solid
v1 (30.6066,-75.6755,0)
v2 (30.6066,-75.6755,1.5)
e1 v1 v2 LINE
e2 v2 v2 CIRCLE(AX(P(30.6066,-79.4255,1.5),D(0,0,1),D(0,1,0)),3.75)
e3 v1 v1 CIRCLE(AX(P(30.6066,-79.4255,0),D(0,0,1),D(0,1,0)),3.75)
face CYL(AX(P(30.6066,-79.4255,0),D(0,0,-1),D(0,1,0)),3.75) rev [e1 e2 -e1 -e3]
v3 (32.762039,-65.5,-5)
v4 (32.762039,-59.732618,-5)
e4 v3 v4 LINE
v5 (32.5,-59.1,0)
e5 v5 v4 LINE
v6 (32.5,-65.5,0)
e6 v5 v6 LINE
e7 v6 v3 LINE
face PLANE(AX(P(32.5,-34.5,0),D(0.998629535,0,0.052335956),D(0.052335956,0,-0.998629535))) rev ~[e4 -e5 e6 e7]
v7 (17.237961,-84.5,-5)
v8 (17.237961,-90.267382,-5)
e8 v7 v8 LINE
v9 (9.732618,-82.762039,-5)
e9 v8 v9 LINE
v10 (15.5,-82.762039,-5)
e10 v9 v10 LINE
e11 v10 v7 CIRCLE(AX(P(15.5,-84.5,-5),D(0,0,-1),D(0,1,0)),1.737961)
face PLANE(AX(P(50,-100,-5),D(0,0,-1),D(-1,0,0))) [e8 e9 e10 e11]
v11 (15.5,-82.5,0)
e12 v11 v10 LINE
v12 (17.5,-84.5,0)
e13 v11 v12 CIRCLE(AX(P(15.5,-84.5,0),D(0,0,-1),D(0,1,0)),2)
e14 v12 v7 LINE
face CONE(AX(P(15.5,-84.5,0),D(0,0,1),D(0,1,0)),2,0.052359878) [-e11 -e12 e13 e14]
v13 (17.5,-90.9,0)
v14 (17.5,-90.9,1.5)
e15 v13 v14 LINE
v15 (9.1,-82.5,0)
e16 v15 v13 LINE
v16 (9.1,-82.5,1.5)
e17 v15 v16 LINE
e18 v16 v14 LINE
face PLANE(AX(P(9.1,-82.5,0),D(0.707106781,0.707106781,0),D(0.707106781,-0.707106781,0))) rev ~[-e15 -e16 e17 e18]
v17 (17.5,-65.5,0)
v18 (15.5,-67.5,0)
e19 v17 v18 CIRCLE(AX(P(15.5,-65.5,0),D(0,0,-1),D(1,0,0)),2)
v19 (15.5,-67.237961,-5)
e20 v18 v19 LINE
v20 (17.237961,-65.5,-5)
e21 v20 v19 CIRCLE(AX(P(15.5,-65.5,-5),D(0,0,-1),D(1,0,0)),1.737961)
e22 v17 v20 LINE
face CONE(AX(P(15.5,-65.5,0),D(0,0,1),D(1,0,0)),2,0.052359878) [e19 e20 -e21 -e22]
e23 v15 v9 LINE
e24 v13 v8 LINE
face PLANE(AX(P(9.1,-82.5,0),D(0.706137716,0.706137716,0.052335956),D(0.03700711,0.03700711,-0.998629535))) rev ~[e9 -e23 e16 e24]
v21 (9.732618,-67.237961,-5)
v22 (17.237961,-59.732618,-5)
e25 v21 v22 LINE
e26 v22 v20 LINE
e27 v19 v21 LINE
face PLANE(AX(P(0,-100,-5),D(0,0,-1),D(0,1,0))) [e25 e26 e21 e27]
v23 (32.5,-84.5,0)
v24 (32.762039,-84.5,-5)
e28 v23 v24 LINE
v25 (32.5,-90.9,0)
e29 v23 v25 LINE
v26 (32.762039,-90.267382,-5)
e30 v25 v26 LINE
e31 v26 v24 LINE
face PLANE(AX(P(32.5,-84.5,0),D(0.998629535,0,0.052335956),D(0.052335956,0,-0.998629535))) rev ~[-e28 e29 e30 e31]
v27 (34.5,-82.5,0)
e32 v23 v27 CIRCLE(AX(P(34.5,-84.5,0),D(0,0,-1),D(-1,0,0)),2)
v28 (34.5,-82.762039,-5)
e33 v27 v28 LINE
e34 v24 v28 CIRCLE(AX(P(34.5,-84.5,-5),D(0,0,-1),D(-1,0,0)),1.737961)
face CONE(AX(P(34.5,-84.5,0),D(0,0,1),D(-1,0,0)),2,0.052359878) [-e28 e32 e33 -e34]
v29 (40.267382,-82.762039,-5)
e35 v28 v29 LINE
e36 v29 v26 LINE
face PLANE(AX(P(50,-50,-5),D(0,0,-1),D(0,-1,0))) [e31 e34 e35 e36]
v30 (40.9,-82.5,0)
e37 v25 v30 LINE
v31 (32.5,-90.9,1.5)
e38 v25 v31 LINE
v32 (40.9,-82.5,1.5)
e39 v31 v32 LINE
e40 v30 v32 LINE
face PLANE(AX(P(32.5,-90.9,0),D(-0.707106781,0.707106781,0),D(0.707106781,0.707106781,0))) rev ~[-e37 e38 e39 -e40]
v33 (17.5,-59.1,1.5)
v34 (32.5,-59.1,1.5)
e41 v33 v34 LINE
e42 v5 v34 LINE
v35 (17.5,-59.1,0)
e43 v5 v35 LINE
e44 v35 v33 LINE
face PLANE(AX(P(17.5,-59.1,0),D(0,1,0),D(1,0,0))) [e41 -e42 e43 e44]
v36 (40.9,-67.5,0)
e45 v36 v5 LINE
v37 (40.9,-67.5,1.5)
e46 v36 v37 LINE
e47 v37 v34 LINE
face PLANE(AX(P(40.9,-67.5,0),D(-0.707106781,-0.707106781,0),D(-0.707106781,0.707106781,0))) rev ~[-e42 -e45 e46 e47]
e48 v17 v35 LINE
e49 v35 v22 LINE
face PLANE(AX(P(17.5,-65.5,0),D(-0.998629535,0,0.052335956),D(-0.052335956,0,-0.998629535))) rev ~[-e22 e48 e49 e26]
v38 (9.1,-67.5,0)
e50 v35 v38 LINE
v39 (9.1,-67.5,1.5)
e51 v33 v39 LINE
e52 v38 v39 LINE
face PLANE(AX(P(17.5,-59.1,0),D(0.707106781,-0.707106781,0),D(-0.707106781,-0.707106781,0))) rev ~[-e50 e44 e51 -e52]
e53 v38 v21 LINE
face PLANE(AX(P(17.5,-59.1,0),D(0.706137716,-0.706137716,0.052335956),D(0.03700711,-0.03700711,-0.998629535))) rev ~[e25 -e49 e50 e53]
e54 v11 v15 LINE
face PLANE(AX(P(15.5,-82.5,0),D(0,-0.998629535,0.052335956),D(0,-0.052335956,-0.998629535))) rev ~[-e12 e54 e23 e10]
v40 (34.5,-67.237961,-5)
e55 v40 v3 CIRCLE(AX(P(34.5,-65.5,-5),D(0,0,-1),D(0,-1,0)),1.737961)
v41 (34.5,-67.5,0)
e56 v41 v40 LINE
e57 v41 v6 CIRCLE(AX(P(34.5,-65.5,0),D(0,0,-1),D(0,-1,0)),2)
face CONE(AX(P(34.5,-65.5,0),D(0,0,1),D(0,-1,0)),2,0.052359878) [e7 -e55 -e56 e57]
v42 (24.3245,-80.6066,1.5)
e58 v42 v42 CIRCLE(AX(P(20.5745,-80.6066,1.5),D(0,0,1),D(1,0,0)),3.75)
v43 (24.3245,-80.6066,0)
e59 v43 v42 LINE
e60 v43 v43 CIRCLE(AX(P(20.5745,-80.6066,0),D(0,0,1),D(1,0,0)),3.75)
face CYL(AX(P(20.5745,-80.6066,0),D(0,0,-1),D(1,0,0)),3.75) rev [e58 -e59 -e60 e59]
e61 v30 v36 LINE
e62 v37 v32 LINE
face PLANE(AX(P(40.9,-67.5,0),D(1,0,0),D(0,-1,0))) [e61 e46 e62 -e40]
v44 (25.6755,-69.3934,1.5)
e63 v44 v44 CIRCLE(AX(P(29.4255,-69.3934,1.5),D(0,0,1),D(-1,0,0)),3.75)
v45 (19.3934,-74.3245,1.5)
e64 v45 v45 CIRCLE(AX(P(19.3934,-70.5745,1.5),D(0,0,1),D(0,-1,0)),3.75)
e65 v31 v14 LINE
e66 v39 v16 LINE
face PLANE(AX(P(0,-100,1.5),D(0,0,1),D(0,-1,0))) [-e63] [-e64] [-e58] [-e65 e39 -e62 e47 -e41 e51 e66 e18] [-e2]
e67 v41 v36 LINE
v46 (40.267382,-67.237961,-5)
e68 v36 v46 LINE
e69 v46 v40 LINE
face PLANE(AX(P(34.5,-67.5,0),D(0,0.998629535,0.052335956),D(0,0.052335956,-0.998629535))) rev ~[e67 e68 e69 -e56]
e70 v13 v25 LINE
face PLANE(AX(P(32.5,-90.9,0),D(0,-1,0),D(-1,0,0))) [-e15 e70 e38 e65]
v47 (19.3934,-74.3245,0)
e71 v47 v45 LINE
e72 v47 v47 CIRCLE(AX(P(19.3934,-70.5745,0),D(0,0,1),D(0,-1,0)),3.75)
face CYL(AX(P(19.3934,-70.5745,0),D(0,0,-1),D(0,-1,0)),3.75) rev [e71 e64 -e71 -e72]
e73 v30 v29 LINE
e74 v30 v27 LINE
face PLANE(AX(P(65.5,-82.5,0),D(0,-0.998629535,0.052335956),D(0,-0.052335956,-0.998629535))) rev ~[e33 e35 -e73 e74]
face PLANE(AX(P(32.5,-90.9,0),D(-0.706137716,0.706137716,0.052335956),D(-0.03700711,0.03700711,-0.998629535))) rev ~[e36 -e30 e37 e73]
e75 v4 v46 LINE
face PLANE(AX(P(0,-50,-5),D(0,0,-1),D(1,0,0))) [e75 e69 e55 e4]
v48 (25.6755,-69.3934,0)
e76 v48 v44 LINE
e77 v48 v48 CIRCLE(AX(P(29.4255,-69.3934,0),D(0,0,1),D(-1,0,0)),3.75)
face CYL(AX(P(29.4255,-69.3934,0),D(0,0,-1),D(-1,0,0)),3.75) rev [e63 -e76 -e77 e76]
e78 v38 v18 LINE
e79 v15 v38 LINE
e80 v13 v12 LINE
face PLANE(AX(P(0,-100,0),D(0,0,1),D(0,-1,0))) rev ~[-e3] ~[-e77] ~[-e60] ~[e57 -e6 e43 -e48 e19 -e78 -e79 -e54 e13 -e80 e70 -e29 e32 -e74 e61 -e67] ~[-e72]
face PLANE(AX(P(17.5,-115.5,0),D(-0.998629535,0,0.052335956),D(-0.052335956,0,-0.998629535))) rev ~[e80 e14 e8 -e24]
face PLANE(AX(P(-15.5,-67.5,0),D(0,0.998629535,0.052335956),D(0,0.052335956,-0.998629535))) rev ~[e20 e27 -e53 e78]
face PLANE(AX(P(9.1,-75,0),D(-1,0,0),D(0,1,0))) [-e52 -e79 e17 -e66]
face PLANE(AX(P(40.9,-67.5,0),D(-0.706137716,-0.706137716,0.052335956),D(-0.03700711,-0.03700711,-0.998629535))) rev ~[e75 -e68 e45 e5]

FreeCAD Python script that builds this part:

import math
import FreeCAD as App
import Part
import Sketcher
from FreeCAD import Vector
Q = App.Units.Quantity


def add_polygon(sketch, points):
    """Adds a closed chain of lines whose ends are joined by coincident constraints."""
    first, n = sketch.GeometryCount, len(points)
    for a, b in zip(points, points[1:] + points[:1]):
        sketch.addGeometry(Part.LineSegment(App.Vector(*a, 0), App.Vector(*b, 0)), False)
    for i in range(n):
        sketch.addConstraint(Sketcher.Constraint("Coincident", first + i, 2, first + (i + 1) % n, 1))

doc = App.newDocument("Part")
body = doc.addObject("PartDesign::Body", "Body")

# Sketch on XY plane
sketch1 = body.newObject("Sketcher::SketchObject", "Sketch")
sketch1.AttachmentSupport = (doc.getObject("XY_Plane"), [""])
sketch1.MapMode = "FlatFace"
add_polygon(sketch1, [(9.1, -75), (9.1, -82.5), (17.5, -90.9), (25, -90.9), (25, -75)])  # lines 0-4
sketch1.addGeometry(Part.Circle(Vector(20.6, -80.6, 0), Vector(0, 0, 1), 3.8), False)  # 5
sketch1.addConstraint(Sketcher.Constraint("Vertical", 0))
sketch1.addConstraint(Sketcher.Constraint("Horizontal", 2))
sketch1.addConstraint(Sketcher.Constraint("Vertical", 3))
sketch1.addConstraint(Sketcher.Constraint("Horizontal", 4))
sketch1.addConstraint(Sketcher.Constraint("Equal", 2, 0))
sketch1.addConstraint(Sketcher.Constraint("Equal", 4, 3))
sketch1.addConstraint(Sketcher.Constraint("Diameter", 5, Q("7.5 mm")))
sketch1.addConstraint(Sketcher.Constraint("DistanceX", 2, 1, 2, 2, Q("7.5 mm")))
sketch1.addConstraint(Sketcher.Constraint("DistanceX", 4, 2, 4, 1, Q("15.9 mm")))
sketch1.addConstraint(Sketcher.Constraint("DistanceX", -1, 1, 2, 2, Q("25 mm")))
sketch1.addConstraint(Sketcher.Constraint("DistanceY", 3, 2, -1, 1, Q("75 mm")))
sketch1.addConstraint(Sketcher.Constraint("DistanceX", -1, 1, 5, 3, Q("20.5745 mm")))
sketch1.addConstraint(Sketcher.Constraint("DistanceY", 5, 3, -1, 1, Q("80.6066 mm")))
pad1 = body.newObject("PartDesign::Pad", "Pad")
pad1.Profile = sketch1
pad1.Length = 1.5

# Sketch on XY plane
sketch2 = body.newObject("Sketcher::SketchObject", "Sketch001")
sketch2.AttachmentSupport = (doc.getObject("XY_Plane"), [""])
sketch2.MapMode = "FlatFace"
sketch2.addGeometry(Part.LineSegment(Vector(17.5, -90.9, 0), Vector(9.1, -82.5, 0)), False)
sketch2.addGeometry(Part.LineSegment(Vector(9.1, -82.5, 0), Vector(15.5, -82.5, 0)), False)
sketch2.addGeometry(Part.ArcOfCircle(Part.Circle(Vector(15.5, -84.5, 0), Vector(0, 0, 1), 2), math.radians(0), math.radians(90)), False)
sketch2.addGeometry(Part.LineSegment(Vector(17.5, -84.5, 0), Vector(17.5, -90.9, 0)), False)
sketch2.addConstraint(Sketcher.Constraint("Coincident", 0, 2, 1, 1))
sketch2.addConstraint(Sketcher.Constraint("Tangent", 1, 2, 2, 2))
sketch2.addConstraint(Sketcher.Constraint("Tangent", 2, 1, 3, 1))
sketch2.addConstraint(Sketcher.Constraint("Coincident", 3, 2, 0, 1))
sketch2.addConstraint(Sketcher.Constraint("Horizontal", 1))
sketch2.addConstraint(Sketcher.Constraint("Vertical", 3))
sketch2.addConstraint(Sketcher.Constraint("Equal", 1, 3))
sketch2.addConstraint(Sketcher.Constraint("Radius", 2, Q("2 mm")))
sketch2.addConstraint(Sketcher.Constraint("DistanceX", 1, 1, 1, 2, Q("6.4 mm")))
sketch2.addConstraint(Sketcher.Constraint("DistanceX", -1, 1, 2, 3, Q("15.5 mm")))
sketch2.addConstraint(Sketcher.Constraint("DistanceY", 2, 3, -1, 1, Q("84.5 mm")))
pad2 = body.newObject("PartDesign::Pad", "Pad001")
pad2.Profile = sketch2
pad2.Length = 5
pad2.Reversed = True
pad2.TaperAngle = -3
doc.recompute()

datumline = body.newObject("PartDesign::Line", "DatumLine")
datumline.Placement = App.Placement(Vector(25, -75, 0), App.Rotation(Vector(0, 0, 1), Vector(0, 0, 1)))
polarpattern = body.newObject("PartDesign::PolarPattern", "PolarPattern")
polarpattern.Originals = [pad1, pad2]
polarpattern.Axis = (datumline, [""])
polarpattern.Angle = 360
polarpattern.Occurrences = 4
body.Tip = polarpattern

doc.recompute()
